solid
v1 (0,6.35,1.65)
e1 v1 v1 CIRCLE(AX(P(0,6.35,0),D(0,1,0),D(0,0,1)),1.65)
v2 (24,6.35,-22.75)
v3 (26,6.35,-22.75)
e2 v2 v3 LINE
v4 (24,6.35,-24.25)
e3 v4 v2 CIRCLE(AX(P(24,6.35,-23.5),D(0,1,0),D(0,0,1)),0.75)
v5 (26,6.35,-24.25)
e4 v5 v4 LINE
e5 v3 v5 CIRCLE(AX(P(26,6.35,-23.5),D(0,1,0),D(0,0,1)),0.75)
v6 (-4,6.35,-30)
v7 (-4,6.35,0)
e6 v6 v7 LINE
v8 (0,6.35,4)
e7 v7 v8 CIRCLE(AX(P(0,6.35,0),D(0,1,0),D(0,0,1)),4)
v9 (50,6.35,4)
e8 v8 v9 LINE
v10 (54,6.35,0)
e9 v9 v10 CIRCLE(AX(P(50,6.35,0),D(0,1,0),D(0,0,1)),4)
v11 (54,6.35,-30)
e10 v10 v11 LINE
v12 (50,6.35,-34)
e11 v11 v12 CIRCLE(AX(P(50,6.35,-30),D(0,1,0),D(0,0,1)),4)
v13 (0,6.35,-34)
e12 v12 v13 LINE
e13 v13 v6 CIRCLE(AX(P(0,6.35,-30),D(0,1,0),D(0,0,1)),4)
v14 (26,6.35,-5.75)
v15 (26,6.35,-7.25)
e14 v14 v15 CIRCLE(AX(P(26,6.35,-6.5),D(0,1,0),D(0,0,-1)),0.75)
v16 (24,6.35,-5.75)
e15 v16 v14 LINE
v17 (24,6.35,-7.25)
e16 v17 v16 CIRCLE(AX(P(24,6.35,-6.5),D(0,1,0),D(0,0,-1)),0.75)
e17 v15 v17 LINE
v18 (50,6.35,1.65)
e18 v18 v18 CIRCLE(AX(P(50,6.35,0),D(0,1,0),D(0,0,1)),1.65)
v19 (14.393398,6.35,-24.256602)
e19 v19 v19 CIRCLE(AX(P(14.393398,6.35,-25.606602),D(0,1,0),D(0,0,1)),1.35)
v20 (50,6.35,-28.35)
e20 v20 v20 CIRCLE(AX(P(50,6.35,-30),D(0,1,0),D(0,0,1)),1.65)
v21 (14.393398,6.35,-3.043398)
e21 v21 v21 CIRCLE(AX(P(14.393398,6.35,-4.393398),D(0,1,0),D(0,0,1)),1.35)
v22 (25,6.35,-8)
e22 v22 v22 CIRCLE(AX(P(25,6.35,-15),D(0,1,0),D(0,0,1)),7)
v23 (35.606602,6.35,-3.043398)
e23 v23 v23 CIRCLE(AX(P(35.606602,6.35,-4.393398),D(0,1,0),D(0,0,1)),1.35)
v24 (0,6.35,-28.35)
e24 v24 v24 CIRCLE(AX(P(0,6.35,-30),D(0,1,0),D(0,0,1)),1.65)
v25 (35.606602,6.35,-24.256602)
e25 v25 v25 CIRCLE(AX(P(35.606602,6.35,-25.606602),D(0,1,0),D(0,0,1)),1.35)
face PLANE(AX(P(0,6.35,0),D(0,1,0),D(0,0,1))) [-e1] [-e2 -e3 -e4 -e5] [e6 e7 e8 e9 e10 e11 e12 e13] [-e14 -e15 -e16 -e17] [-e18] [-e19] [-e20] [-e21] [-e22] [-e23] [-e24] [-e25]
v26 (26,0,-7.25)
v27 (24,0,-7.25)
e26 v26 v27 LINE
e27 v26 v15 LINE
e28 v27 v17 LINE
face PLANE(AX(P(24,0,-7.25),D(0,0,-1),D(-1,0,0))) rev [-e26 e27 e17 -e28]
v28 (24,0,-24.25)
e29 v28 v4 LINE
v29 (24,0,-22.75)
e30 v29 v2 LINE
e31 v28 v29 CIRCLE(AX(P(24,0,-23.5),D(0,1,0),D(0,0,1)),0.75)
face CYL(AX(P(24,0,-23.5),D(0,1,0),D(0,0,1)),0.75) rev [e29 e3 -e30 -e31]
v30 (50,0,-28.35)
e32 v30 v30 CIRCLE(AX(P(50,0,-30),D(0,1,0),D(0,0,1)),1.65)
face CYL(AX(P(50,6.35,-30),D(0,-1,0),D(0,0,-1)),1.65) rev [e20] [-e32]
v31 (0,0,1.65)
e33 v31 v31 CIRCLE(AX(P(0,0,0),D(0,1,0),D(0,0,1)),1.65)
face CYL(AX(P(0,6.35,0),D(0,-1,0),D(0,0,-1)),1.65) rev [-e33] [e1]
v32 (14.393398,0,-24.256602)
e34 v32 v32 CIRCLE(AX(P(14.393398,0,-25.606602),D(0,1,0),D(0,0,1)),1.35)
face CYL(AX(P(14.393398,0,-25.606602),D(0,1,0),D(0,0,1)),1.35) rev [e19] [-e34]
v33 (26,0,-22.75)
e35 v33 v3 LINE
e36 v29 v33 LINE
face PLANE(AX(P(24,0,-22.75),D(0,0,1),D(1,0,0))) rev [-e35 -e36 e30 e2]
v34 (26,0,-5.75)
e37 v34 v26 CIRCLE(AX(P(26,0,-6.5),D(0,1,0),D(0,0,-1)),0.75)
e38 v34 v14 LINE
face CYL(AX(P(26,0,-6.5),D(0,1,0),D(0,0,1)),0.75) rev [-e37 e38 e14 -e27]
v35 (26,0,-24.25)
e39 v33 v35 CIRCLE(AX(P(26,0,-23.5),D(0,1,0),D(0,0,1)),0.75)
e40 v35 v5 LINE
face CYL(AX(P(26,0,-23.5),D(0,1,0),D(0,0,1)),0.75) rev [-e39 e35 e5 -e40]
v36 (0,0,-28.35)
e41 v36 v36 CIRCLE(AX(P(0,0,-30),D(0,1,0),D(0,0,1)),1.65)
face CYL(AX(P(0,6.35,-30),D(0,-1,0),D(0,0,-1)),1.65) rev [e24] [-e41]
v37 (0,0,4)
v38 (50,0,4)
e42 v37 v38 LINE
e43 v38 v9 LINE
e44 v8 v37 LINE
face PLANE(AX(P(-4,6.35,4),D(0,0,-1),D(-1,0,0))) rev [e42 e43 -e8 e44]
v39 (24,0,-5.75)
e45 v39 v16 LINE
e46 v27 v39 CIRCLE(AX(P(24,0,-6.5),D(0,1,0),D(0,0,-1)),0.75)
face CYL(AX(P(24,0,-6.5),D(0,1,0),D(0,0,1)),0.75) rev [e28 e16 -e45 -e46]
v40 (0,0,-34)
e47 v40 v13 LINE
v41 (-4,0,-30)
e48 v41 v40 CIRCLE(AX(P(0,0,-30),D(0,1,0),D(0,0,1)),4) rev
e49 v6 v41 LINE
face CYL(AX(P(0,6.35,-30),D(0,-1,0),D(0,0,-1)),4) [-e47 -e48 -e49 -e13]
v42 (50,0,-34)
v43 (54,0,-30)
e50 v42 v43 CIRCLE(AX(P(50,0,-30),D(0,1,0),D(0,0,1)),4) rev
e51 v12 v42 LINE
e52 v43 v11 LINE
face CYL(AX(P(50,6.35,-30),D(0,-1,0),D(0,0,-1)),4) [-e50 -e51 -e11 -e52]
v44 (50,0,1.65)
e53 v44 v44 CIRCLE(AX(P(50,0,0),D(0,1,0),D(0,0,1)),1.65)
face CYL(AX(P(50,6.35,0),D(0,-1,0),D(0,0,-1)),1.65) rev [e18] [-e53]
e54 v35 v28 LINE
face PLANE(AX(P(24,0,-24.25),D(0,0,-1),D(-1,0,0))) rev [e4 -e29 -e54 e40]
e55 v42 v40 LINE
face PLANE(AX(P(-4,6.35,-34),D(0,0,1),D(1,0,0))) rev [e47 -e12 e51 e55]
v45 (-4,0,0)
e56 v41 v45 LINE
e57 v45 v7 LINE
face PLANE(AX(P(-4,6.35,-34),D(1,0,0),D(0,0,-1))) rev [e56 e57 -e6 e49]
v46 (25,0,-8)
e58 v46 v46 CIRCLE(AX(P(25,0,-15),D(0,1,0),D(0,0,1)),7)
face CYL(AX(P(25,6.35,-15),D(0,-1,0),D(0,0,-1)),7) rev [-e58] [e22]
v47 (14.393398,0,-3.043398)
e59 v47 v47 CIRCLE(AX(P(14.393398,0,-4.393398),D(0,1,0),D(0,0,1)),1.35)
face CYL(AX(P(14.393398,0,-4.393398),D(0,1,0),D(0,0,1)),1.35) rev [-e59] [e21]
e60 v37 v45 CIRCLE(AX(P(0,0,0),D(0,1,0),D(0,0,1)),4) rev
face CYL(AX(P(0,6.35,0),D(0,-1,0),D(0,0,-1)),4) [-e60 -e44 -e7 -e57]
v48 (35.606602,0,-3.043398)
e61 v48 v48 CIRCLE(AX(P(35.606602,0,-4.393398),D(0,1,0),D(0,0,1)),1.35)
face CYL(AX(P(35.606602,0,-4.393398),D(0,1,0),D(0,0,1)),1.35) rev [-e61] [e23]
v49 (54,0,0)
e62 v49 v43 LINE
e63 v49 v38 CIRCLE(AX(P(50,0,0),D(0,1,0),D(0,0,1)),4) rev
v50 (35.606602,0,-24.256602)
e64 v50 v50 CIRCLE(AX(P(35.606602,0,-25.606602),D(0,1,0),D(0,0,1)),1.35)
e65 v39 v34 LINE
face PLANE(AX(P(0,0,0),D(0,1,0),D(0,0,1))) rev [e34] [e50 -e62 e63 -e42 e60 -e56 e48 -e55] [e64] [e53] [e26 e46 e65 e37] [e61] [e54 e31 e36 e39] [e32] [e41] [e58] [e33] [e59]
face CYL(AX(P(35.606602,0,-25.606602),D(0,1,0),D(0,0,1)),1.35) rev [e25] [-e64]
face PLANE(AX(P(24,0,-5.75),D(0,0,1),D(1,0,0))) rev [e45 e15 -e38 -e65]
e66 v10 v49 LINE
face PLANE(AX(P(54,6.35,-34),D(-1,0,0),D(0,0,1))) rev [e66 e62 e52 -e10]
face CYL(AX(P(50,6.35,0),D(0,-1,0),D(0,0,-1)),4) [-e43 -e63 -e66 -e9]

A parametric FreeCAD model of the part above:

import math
import FreeCAD as App
import Part
import Sketcher

V = App.Vector


def edges_at(feature, points):
    """Names of the edges that pass closest to the given points."""
    edges = feature.Shape.Edges
    near = lambda p: min(range(len(edges)), key=lambda i: edges[i].distToShape(Part.Vertex(*p))[0])
    return sorted({f"Edge{near(p) + 1}" for p in points})

doc = App.newDocument("Part")
body = doc.addObject("PartDesign::Body", "Body")

sketch1 = doc.addObject("Sketcher::SketchObject", "Sketch")
body.addObject(sketch1)
sketch1.AttachmentSupport = (doc.XZ_Plane, [""])
sketch1.MapMode = "FlatFace"
sketch1.addGeometry(Part.LineSegment(V(-4, -34, 0), V(-4, 4, 0)), False)
sketch1.addGeometry(Part.LineSegment(V(-4, 4, 0), V(54, 4, 0)), False)
sketch1.addGeometry(Part.LineSegment(V(54, 4, 0), V(54, -34, 0)), False)
sketch1.addGeometry(Part.LineSegment(V(54, -34, 0), V(-4, -34, 0)), False)
sketch1.addGeometry(Part.Circle(V(0, 0, 0), V(0, 0, 1), 1.65), False)
sketch1.addGeometry(Part.Circle(V(50, 0, 0), V(0, 0, 1), 1.65), False)
sketch1.addGeometry(Part.Circle(V(0, -30, 0), V(0, 0, 1), 1.65), False)
sketch1.addGeometry(Part.Circle(V(25, -15, 0), V(0, 0, 1), 7), False)
sketch1.addGeometry(Part.Circle(V(50, -30, 0), V(0, 0, 1), 1.65), False)
sketch1.addConstraint(Sketcher.Constraint("Coincident", 0, 2, 1, 1))
sketch1.addConstraint(Sketcher.Constraint("Coincident", 1, 2, 2, 1))
sketch1.addConstraint(Sketcher.Constraint("Coincident", 2, 2, 3, 1))
sketch1.addConstraint(Sketcher.Constraint("Coincident", 3, 2, 0, 1))
sketch1.addConstraint(Sketcher.Constraint("Vertical", 0))
sketch1.addConstraint(Sketcher.Constraint("Horizontal", 1))
sketch1.addConstraint(Sketcher.Constraint("Vertical", 2))
sketch1.addConstraint(Sketcher.Constraint("Horizontal", 3))
sketch1.addConstraint(Sketcher.Constraint("Coincident", 4, 3, -1, 1))
sketch1.addConstraint(Sketcher.Constraint("Equal", 4, 5))
sketch1.addConstraint(Sketcher.Constraint("Equal", 5, 6))
sketch1.addConstraint(Sketcher.Constraint("Equal", 6, 8))
sketch1.addConstraint(Sketcher.Constraint("PointOnObject", 5, 3, -1))
sketch1.addConstraint(Sketcher.Constraint("PointOnObject", 6, 3, -2))
sketch1.addConstraint(Sketcher.Constraint("Horizontal", 6, 3, 8, 3))
sketch1.addConstraint(Sketcher.Constraint("Vertical", 5, 3, 8, 3))
sketch1.addConstraint(Sketcher.Constraint("Diameter", 7, 14.0))
sketch1.addConstraint(Sketcher.Constraint("Diameter", 4, 3.3))
sketch1.addConstraint(Sketcher.Constraint("DistanceX", 1, 1, 1, 2, 58.0))
sketch1.addConstraint(Sketcher.Constraint("DistanceY", 0, 1, 0, 2, 38.0))
sketch1.addConstraint(Sketcher.Constraint("DistanceX", -1, 1, 5, 3, 50.0))
sketch1.addConstraint(Sketcher.Constraint("DistanceY", 6, 3, -1, 1, 30.0))
sketch1.addConstraint(Sketcher.Constraint("DistanceX", -1, 1, 7, 3, 25.0))
sketch1.addConstraint(Sketcher.Constraint("DistanceY", 7, 3, -1, 1, 15.0))
sketch1.addConstraint(Sketcher.Constraint("DistanceX", 0, 2, -1, 1, 4.0))
sketch1.addConstraint(Sketcher.Constraint("DistanceY", -1, 1, 0, 2, 4.0))
pad1 = doc.addObject("PartDesign::Pad", "Pad")
body.addObject(pad1)
pad1.Profile = sketch1
pad1.Length = 6.35
pad1.Reversed = True
doc.recompute()

fillet = doc.addObject("PartDesign::Fillet", "Fillet")
body.addObject(fillet)
fillet.Base = (pad1, edges_at(pad1, [
    (-4, 3.175, -34),
    (54, 3.175, -34),
    (54, 3.175, 4),
    (-4, 3.175, 4),
]))
fillet.Radius = 4

sketch2 = doc.addObject("Sketcher::SketchObject", "Sketch001")
body.addObject(sketch2)
sketch2.AttachmentSupport = (doc.XZ_Plane, [""])
sketch2.MapMode = "FlatFace"
sketch2.AttachmentOffset = App.Placement(V(0, 0, -6.35), App.Rotation())
sketch2.addGeometry(Part.LineSegment(V(26, -24.25, 0), V(24, -24.25, 0)), False)
sketch2.addGeometry(Part.ArcOfCircle(Part.Circle(V(24, -23.5, 0), V(0, 0, 1), 0.75), math.radians(90), math.radians(270)), False)
sketch2.addGeometry(Part.LineSegment(V(24, -22.75, 0), V(26, -22.75, 0)), False)
sketch2.addGeometry(Part.ArcOfCircle(Part.Circle(V(26, -23.5, 0), V(0, 0, 1), 0.75), math.radians(-90), math.radians(90)), False)
sketch2.addGeometry(Part.LineSegment(V(24, -5.75, 0), V(26, -5.75, 0)), False)
sketch2.addGeometry(Part.ArcOfCircle(Part.Circle(V(26, -6.5, 0), V(0, 0, 1), 0.75), math.radians(-90), math.radians(90)), False)
sketch2.addGeometry(Part.LineSegment(V(26, -7.25, 0), V(24, -7.25, 0)), False)
sketch2.addGeometry(Part.ArcOfCircle(Part.Circle(V(24, -6.5, 0), V(0, 0, 1), 0.75), math.radians(90), math.radians(270)), False)
sketch2.addConstraint(Sketcher.Constraint("Tangent", 0, 2, 1, 2))
sketch2.addConstraint(Sketcher.Constraint("Tangent", 1, 1, 2, 1))
sketch2.addConstraint(Sketcher.Constraint("Tangent", 2, 2, 3, 2))
sketch2.addConstraint(Sketcher.Constraint("Tangent", 3, 1, 0, 1))
sketch2.addConstraint(Sketcher.Constraint("Tangent", 4, 2, 5, 2))
sketch2.addConstraint(Sketcher.Constraint("Tangent", 5, 1, 6, 1))
sketch2.addConstraint(Sketcher.Constraint("Tangent", 6, 2, 7, 2))
sketch2.addConstraint(Sketcher.Constraint("Tangent", 7, 1, 4, 1))
sketch2.addConstraint(Sketcher.Constraint("Horizontal", 0))
sketch2.addConstraint(Sketcher.Constraint("Horizontal", 2))
sketch2.addConstraint(Sketcher.Constraint("Horizontal", 4))
sketch2.addConstraint(Sketcher.Constraint("Horizontal", 6))
sketch2.addConstraint(Sketcher.Constraint("Equal", 3, 5))
sketch2.addConstraint(Sketcher.Constraint("Vertical", 3, 3, 5, 3))
sketch2.addConstraint(Sketcher.Constraint("Vertical", 1, 3, 7, 3))
sketch2.addConstraint(Sketcher.Constraint("DistanceX", 0, 2, 0, 1, 2.0))
sketch2.addConstraint(Sketcher.Constraint("Radius", 1, 0.75))
sketch2.addConstraint(Sketcher.Constraint("DistanceX", -1, 1, 1, 3, 24.0))
sketch2.addConstraint(Sketcher.Constraint("DistanceY", 3, 3, 5, 3, 17.0))
sketch2.addConstraint(Sketcher.Constraint("DistanceY", 1, 3, -1, 1, 23.5))
pocket1 = doc.addObject("PartDesign::Pocket", "Pocket")
body.addObject(pocket1)
pocket1.Profile = sketch2
pocket1.Type = "ThroughAll"
pocket1.Reversed = True

sketch3 = doc.addObject("Sketcher::SketchObject", "Sketch002")
body.addObject(sketch3)
sketch3.AttachmentSupport = (doc.XZ_Plane, [""])
sketch3.MapMode = "FlatFace"
sketch3.AttachmentOffset = App.Placement(V(0, 0, -6.35), App.Rotation())
sketch3.addGeometry(Part.Circle(V(35.606602, -25.606602, 0), V(0, 0, 1), 1.35), False)
sketch3.addGeometry(Part.Circle(V(35.606602, -4.393398, 0), V(0, 0, 1), 1.35), False)
sketch3.addGeometry(Part.Circle(V(14.393398, -25.606602, 0), V(0, 0, 1), 1.35), False)
sketch3.addGeometry(Part.Circle(V(14.393398, -4.393398, 0), V(0, 0, 1), 1.35), False)
sketch3.addConstraint(Sketcher.Constraint("Equal", 0, 1))
sketch3.addConstraint(Sketcher.Constraint("Equal", 1, 2))
sketch3.addConstraint(Sketcher.Constraint("Equal", 2, 3))
sketch3.addConstraint(Sketcher.Constraint("Horizontal", 0, 3, 2, 3))
sketch3.addConstraint(Sketcher.Constraint("Horizontal", 1, 3, 3, 3))
sketch3.addConstraint(Sketcher.Constraint("Vertical", 0, 3, 1, 3))
sketch3.addConstraint(Sketcher.Constraint("Vertical", 2, 3, 3, 3))
sketch3.addConstraint(Sketcher.Constraint("Diameter", 0, 2.7))
sketch3.addConstraint(Sketcher.Constraint("DistanceX", -1, 1, 0, 3, 35.606602))
sketch3.addConstraint(Sketcher.Constraint("DistanceY", 0, 3, -1, 1, 25.606602))
sketch3.addConstraint(Sketcher.Constraint("DistanceY", 1, 3, -1, 1, 4.393398))
sketch3.addConstraint(Sketcher.Constraint("DistanceX", -1, 1, 2, 3, 14.393398))
pocket2 = doc.addObject("PartDesign::Pocket", "Pocket001")
body.addObject(pocket2)
pocket2.Profile = sketch3
pocket2.Type = "ThroughAll"
pocket2.Reversed = True

doc.recompute()
